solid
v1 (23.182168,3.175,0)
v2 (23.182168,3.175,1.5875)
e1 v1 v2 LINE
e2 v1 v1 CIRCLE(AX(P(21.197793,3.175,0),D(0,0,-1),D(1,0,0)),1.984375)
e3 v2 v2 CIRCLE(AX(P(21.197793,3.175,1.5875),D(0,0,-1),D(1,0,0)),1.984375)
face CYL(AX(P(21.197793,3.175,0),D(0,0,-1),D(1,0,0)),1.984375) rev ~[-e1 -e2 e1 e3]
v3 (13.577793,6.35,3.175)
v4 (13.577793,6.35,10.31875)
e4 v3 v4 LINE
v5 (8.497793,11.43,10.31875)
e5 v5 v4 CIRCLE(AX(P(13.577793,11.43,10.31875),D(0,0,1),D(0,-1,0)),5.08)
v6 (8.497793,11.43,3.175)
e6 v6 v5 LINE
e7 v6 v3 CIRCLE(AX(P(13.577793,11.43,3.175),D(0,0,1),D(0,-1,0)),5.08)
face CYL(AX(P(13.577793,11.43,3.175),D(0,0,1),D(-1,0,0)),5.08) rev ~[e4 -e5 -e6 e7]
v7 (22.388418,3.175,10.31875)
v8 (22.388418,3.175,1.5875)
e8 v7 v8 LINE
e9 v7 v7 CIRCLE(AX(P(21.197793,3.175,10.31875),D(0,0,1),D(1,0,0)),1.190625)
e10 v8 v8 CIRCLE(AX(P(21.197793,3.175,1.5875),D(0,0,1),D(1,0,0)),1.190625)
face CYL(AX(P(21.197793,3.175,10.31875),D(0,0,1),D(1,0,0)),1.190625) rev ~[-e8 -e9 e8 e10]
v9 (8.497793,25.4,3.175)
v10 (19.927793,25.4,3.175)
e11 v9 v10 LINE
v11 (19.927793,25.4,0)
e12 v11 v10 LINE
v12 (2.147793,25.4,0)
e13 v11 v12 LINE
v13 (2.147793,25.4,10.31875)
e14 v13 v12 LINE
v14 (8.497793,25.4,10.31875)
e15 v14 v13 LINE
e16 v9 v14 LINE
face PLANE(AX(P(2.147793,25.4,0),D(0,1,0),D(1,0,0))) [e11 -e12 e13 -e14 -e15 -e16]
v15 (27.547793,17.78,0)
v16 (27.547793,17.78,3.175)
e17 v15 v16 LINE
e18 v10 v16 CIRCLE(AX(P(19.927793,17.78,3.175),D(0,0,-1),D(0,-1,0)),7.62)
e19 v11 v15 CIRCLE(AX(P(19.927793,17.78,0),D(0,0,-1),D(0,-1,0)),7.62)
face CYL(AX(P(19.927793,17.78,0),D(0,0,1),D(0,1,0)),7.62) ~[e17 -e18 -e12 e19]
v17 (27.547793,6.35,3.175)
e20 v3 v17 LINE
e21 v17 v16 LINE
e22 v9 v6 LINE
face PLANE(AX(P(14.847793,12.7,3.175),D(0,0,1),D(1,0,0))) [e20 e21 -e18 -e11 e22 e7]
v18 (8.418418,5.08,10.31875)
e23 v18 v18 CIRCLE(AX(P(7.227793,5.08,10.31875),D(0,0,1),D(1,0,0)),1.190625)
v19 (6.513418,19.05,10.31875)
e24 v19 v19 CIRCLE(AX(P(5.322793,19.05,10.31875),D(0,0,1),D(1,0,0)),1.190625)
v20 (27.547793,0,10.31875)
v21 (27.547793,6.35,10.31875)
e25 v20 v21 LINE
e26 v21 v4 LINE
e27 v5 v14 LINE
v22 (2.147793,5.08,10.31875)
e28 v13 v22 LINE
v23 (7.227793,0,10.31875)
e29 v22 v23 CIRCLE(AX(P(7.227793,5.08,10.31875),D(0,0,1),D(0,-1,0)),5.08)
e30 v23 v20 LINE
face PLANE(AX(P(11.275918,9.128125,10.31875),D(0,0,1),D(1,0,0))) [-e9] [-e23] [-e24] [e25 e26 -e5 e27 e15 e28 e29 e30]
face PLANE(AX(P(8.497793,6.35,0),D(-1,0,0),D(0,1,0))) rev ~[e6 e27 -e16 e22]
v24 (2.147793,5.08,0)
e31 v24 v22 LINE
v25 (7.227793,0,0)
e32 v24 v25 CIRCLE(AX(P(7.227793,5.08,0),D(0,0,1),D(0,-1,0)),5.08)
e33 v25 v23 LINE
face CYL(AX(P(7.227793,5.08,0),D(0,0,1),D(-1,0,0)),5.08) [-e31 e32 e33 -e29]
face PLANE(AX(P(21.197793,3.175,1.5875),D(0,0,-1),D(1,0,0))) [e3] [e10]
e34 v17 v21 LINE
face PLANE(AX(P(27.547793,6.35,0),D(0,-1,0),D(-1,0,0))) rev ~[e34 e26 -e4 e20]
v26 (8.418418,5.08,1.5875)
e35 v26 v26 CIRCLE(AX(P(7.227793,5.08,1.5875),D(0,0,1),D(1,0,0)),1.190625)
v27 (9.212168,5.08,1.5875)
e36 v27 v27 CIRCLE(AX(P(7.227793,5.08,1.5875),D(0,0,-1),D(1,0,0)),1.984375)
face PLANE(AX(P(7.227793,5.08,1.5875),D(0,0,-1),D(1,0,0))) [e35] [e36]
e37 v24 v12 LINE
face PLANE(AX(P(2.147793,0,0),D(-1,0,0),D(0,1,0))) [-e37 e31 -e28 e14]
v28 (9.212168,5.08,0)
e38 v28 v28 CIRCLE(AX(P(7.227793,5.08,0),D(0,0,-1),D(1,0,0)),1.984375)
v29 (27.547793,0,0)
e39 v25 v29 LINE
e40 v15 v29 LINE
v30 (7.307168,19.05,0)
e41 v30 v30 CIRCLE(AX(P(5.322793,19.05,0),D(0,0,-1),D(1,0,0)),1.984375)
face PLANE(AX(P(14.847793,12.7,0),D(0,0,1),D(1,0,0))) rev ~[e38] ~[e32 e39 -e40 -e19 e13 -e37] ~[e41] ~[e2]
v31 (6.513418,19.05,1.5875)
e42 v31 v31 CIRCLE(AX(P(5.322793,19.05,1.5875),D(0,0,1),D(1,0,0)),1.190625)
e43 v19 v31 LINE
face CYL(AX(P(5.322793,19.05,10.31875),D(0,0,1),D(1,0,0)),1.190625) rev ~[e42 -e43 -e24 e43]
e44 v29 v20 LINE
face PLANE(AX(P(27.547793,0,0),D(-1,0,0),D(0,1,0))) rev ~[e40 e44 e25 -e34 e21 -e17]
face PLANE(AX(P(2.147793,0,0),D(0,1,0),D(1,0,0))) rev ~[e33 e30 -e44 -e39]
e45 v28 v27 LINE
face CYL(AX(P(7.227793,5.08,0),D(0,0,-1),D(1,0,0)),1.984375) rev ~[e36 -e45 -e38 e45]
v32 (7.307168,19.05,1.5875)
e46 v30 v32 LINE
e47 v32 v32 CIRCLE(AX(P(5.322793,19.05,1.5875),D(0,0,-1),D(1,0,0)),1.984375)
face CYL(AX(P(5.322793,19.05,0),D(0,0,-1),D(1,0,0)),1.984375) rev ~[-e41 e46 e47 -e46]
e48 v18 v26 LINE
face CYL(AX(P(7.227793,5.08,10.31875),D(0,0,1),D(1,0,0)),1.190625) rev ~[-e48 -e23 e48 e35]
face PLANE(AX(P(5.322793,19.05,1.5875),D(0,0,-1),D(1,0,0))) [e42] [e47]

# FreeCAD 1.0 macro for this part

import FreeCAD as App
import Part
import Sketcher
Q = App.Units.Quantity


def edges_at(feature, points):
    """Names of the edges that pass closest to the given points."""
    edges = feature.Shape.Edges
    near = lambda p: min(range(len(edges)), key=lambda i: edges[i].distToShape(Part.Vertex(*p))[0])
    return sorted({f"Edge{near(p) + 1}" for p in points})

doc = App.newDocument("Part")
body = doc.addObject("PartDesign::Body", "Body")

sketch1 = body.newObject("Sketcher::SketchObject", "Sketch")
sketch1.AttachmentSupport = (doc.getObject("XY_Plane"), [""])
sketch1.MapMode = "FlatFace"
sketch1.addGeometry(Part.LineSegment(App.Vector(2.147793, 25.4, 0), App.Vector(2.147793, 0, 0)), False)
sketch1.addGeometry(Part.LineSegment(App.Vector(2.147793, 0, 0), App.Vector(27.547793, 0, 0)), False)
sketch1.addGeometry(Part.LineSegment(App.Vector(27.547793, 0, 0), App.Vector(27.547793, 25.4, 0)), False)
sketch1.addGeometry(Part.LineSegment(App.Vector(27.547793, 25.4, 0), App.Vector(2.147793, 25.4, 0)), False)
sketch1.addConstraint(Sketcher.Constraint("Coincident", 0, 2, 1, 1))
sketch1.addConstraint(Sketcher.Constraint("Coincident", 1, 2, 2, 1))
sketch1.addConstraint(Sketcher.Constraint("Coincident", 2, 2, 3, 1))
sketch1.addConstraint(Sketcher.Constraint("Coincident", 3, 2, 0, 1))
sketch1.addConstraint(Sketcher.Constraint("Vertical", 0))
sketch1.addConstraint(Sketcher.Constraint("Horizontal", 1))
sketch1.addConstraint(Sketcher.Constraint("Vertical", 2))
sketch1.addConstraint(Sketcher.Constraint("Horizontal", 3))
sketch1.addConstraint(Sketcher.Constraint("PointOnObject", 0, 2, -1))
sketch1.addConstraint(Sketcher.Constraint("Equal", 3, 0))
sketch1.addConstraint(Sketcher.Constraint("DistanceX", 1, 1, 1, 2, Q("1 in")))
sketch1.addConstraint(Sketcher.Constraint("DistanceX", -1, 1, 0, 2, 2.147793))
pad1 = body.newObject("PartDesign::Pad", "Pad")
pad1.Profile = sketch1
pad1.Length = Q("0.125 in")

sketch2 = body.newObject("Sketcher::SketchObject", "Sketch001")
sketch2.AttachmentSupport = (doc.getObject("XY_Plane"), [""])
sketch2.MapMode = "FlatFace"
sketch2.addGeometry(Part.LineSegment(App.Vector(2.147793, 0, 0), App.Vector(27.547793, 0, 0)), False)
sketch2.addGeometry(Part.LineSegment(App.Vector(27.547793, 0, 0), App.Vector(27.547793, 6.35, 0)), False)
sketch2.addGeometry(Part.LineSegment(App.Vector(27.547793, 6.35, 0), App.Vector(8.497793, 6.35, 0)), False)
sketch2.addGeometry(Part.LineSegment(App.Vector(8.497793, 6.35, 0), App.Vector(8.497793, 25.4, 0)), False)
sketch2.addGeometry(Part.LineSegment(App.Vector(8.497793, 25.4, 0), App.Vector(2.147793, 25.4, 0)), False)
sketch2.addGeometry(Part.LineSegment(App.Vector(2.147793, 25.4, 0), App.Vector(2.147793, 0, 0)), False)
sketch2.addConstraint(Sketcher.Constraint("Coincident", 0, 2, 1, 1))
sketch2.addConstraint(Sketcher.Constraint("Coincident", 1, 2, 2, 1))
sketch2.addConstraint(Sketcher.Constraint("Coincident", 2, 2, 3, 1))
sketch2.addConstraint(Sketcher.Constraint("Coincident", 3, 2, 4, 1))
sketch2.addConstraint(Sketcher.Constraint("Coincident", 4, 2, 5, 1))
sketch2.addConstraint(Sketcher.Constraint("Coincident", 5, 2, 0, 1))
sketch2.addConstraint(Sketcher.Constraint("Horizontal", 0))
sketch2.addConstraint(Sketcher.Constraint("Vertical", 1))
sketch2.addConstraint(Sketcher.Constraint("Horizontal", 2))
sketch2.addConstraint(Sketcher.Constraint("Vertical", 3))
sketch2.addConstraint(Sketcher.Constraint("Horizontal", 4))
sketch2.addConstraint(Sketcher.Constraint("Vertical", 5))
sketch2.addConstraint(Sketcher.Constraint("PointOnObject", 0, 2, -1))
sketch2.addConstraint(Sketcher.Constraint("Equal", 4, 1))
sketch2.addConstraint(Sketcher.Constraint("Equal", 2, 3))
sketch2.addConstraint(Sketcher.Constraint("DistanceX", 0, 1, 0, 2, Q("1 in")))
sketch2.addConstraint(Sketcher.Constraint("DistanceX", 2, 2, 2, 1, Q("0.75 in")))
sketch2.addConstraint(Sketcher.Constraint("DistanceX", -1, 1, 0, 2, 27.547793))
pad2 = body.newObject("PartDesign::Pad", "Pad001")
pad2.Profile = sketch2
pad2.Length = Q("0.40625 in")
doc.recompute()

fillet = body.newObject("PartDesign::Fillet", "Fillet")
fillet.Base = (pad2, edges_at(pad2, [(8.498, 6.35, 6.747), (2.148, 0, 5.159)]))
fillet.Radius = Q("0.2 in")
doc.recompute()

fillet2 = body.newObject("PartDesign::Fillet", "Fillet001")
fillet2.Base = (fillet, edges_at(fillet, [(27.548, 25.4, 1.587)]))
fillet2.Radius = Q("0.3 in")

sketch3 = body.newObject("Sketcher::SketchObject", "Sketch002")
sketch3.AttachmentSupport = (doc.getObject("XY_Plane"), [""])
sketch3.MapMode = "FlatFace"
sketch3.AttachmentOffset = App.Placement(App.Vector(0, 0, 0.40625 * 25.4), App.Rotation())
sketch3.addGeometry(Part.Circle(App.Vector(7.227793, 5.08, 0), App.Vector(0, 0, 1), 1.190625), False)
sketch3.addGeometry(Part.Circle(App.Vector(5.322793, 19.05, 0), App.Vector(0, 0, 1), 1.190625), False)
sketch3.addGeometry(Part.Circle(App.Vector(21.197793, 3.175, 0), App.Vector(0, 0, 1), 1.190625), False)
sketch3.addConstraint(Sketcher.Constraint("Equal", 0, 1))
sketch3.addConstraint(Sketcher.Constraint("Equal", 1, 2))
sketch3.addConstraint(Sketcher.Constraint("Diameter", 0, Q("0.09375 in")))
sketch3.addConstraint(Sketcher.Constraint("DistanceY", -1, 1, 0, 3, Q("0.2 in")))
sketch3.addConstraint(Sketcher.Constraint("DistanceY", -1, 1, 1, 3, Q("0.75 in")))
sketch3.addConstraint(Sketcher.Constraint("DistanceX", 0, 3, 2, 3, Q("0.55 in")))
sketch3.addConstraint(Sketcher.Constraint("DistanceY", -1, 1, 2, 3, Q("0.125 in")))
sketch3.addConstraint(Sketcher.Constraint("DistanceX", 1, 3, 0, 3, Q("0.075 in")))
sketch3.addConstraint(Sketcher.Constraint("DistanceX", -1, 1, 0, 3, 7.227793))
pocket1 = body.newObject("PartDesign::Pocket", "Pocket")
pocket1.Profile = sketch3
pocket1.Type = "ThroughAll"

sketch4 = body.newObject("Sketcher::SketchObject", "Sketch003")
sketch4.AttachmentSupport = (doc.getObject("XY_Plane"), [""])
sketch4.MapMode = "FlatFace"
sketch4.addGeometry(Part.Circle(App.Vector(7.227793, 5.08, 0), App.Vector(0, 0, 1), 1.984375), False)
sketch4.addGeometry(Part.Circle(App.Vector(21.197793, 3.175, 0), App.Vector(0, 0, 1), 1.984375), False)
sketch4.addGeometry(Part.Circle(App.Vector(5.322793, 19.05, 0), App.Vector(0, 0, 1), 1.984375), False)
sketch4.addConstraint(Sketcher.Constraint("Equal", 0, 1))
sketch4.addConstraint(Sketcher.Constraint("Equal", 1, 2))
sketch4.addConstraint(Sketcher.Constraint("Diameter", 0, Q("0.15625 in")))
sketch4.addConstraint(Sketcher.Constraint("DistanceY", -1, 1, 0, 3, Q("0.2 in")))
sketch4.addConstraint(Sketcher.Constraint("DistanceY", -1, 1, 2, 3, Q("0.75 in")))
sketch4.addConstraint(Sketcher.Constraint("DistanceX", 0, 3, 1, 3, Q("0.55 in")))
sketch4.addConstraint(Sketcher.Constraint("DistanceY", -1, 1, 1, 3, Q("0.125 in")))
sketch4.addConstraint(Sketcher.Constraint("DistanceX", 2, 3, 0, 3, Q("0.075 in")))
sketch4.addConstraint(Sketcher.Constraint("DistanceX", -1, 1, 0, 3, 7.227793))
pocket2 = body.newObject("PartDesign::Pocket", "Pocket001")
pocket2.Profile = sketch4
pocket2.Length = Q("0.0625 in")
pocket2.Reversed = True

doc.recompute()
